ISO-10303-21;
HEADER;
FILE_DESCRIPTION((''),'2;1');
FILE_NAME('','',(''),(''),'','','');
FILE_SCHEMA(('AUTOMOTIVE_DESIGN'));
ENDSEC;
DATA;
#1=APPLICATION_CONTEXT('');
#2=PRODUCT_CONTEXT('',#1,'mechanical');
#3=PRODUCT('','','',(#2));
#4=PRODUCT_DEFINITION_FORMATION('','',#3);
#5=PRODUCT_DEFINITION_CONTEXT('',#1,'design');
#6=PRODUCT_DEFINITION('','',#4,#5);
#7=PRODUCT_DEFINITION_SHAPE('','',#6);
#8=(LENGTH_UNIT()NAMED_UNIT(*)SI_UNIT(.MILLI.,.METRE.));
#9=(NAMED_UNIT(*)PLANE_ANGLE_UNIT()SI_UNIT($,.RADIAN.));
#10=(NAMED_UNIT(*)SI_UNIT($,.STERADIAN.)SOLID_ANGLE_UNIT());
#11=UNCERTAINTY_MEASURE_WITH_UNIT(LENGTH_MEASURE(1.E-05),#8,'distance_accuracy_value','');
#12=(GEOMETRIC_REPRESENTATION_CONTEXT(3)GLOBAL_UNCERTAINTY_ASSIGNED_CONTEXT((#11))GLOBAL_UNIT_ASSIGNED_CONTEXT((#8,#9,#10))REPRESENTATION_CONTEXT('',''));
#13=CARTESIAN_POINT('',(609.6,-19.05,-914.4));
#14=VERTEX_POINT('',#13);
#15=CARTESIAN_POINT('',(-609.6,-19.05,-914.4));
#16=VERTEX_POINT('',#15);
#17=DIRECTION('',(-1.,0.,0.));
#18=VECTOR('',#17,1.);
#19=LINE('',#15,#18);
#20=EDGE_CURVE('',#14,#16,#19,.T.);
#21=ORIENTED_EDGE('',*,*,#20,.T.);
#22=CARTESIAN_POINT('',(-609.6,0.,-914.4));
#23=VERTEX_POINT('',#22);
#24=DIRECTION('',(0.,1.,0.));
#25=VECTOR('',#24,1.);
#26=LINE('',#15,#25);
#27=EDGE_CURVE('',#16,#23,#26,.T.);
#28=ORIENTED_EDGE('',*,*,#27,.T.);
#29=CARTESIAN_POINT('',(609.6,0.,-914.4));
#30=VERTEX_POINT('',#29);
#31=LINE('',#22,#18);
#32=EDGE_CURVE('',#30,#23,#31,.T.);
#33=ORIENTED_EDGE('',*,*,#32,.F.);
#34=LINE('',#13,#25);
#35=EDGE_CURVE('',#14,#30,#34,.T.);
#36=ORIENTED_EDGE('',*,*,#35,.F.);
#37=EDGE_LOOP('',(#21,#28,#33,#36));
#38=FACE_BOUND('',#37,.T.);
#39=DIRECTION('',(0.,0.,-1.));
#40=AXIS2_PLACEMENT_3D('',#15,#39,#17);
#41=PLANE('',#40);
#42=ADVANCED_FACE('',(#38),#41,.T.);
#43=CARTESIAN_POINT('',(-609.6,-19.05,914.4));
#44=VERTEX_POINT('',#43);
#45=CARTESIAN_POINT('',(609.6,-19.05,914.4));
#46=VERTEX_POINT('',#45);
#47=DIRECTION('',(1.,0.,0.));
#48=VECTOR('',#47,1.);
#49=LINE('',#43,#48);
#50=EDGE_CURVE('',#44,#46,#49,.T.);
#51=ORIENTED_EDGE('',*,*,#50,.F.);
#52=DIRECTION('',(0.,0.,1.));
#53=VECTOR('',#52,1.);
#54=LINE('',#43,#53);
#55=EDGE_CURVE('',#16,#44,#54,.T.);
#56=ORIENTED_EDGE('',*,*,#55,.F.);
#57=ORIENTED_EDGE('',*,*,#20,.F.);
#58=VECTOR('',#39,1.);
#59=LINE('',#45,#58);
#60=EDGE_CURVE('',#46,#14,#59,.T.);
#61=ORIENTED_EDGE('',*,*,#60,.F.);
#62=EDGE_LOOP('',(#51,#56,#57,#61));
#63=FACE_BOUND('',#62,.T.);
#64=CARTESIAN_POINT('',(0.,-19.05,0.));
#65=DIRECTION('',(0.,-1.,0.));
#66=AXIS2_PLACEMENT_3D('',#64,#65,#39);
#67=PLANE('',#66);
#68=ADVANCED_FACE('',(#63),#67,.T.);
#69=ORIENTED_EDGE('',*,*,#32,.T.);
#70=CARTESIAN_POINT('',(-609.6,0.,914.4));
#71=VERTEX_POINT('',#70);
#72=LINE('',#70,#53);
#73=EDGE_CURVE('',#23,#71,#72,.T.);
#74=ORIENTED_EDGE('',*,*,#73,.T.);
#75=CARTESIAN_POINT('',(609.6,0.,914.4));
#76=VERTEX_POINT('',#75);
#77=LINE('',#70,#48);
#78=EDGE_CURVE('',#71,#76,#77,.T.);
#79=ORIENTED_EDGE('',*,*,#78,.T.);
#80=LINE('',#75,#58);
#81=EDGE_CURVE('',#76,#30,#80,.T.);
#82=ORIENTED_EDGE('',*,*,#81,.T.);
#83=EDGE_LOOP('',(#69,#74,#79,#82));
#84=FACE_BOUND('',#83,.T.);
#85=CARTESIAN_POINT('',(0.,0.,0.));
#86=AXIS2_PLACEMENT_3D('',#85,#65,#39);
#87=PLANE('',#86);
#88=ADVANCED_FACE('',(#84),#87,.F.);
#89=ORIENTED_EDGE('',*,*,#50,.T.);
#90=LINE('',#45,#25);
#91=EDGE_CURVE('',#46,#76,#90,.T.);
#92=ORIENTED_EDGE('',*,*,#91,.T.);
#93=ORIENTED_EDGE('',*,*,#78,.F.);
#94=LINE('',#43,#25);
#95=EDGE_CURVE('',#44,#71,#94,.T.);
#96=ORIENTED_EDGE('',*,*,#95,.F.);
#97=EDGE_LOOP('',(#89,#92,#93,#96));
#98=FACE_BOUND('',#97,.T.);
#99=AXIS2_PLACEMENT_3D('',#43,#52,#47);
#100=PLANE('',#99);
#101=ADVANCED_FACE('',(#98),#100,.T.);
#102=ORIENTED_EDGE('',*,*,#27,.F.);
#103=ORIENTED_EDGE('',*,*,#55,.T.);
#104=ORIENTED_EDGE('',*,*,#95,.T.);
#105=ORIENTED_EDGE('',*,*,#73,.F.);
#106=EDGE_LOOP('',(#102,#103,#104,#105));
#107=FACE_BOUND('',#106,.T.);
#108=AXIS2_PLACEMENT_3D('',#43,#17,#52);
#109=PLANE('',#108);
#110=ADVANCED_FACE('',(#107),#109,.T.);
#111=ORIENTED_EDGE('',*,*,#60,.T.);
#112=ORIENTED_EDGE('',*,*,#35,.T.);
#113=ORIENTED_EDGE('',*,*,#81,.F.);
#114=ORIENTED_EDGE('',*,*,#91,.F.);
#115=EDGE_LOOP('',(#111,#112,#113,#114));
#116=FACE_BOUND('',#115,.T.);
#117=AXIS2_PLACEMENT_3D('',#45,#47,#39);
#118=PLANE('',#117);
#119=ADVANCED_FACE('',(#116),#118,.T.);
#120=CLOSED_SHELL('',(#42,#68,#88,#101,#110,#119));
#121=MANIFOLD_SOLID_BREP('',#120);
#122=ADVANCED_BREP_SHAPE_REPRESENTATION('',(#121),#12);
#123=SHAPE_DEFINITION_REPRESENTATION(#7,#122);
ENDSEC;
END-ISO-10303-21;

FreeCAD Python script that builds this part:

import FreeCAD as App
import Part
import Sketcher
Q = App.Units.Quantity

doc = App.newDocument("Part")
body = doc.addObject("PartDesign::Body", "Body")

sketch1 = body.newObject("Sketcher::SketchObject", "Sketch")
sketch1.AttachmentSupport = (doc.getObject("XZ_Plane"), [""])
sketch1.MapMode = "FlatFace"
sketch1.addGeometry([
    Part.LineSegment(App.Vector(-610, -914, 0), App.Vector(-610, 914, 0)),
    Part.LineSegment(App.Vector(-610, 914, 0), App.Vector(610, 914, 0)),
    Part.LineSegment(App.Vector(610, 914, 0), App.Vector(610, -914, 0)),
    Part.LineSegment(App.Vector(610, -914, 0), App.Vector(-610, -914, 0)),
], False)
sketch1.addConstraint([
    Sketcher.Constraint("Coincident", 0, 2, 1, 1),
    Sketcher.Constraint("Coincident", 1, 2, 2, 1),
    Sketcher.Constraint("Coincident", 2, 2, 3, 1),
    Sketcher.Constraint("Coincident", 3, 2, 0, 1),
    Sketcher.Constraint("Vertical", 0),
    Sketcher.Constraint("Horizontal", 1),
    Sketcher.Constraint("Vertical", 2),
    Sketcher.Constraint("Horizontal", 3),
    Sketcher.Constraint("Symmetric", 0, 2, 2, 2, -1, 1),
    Sketcher.Constraint("DistanceX", 1, 1, 1, 2, Q("48 in")),
    Sketcher.Constraint("DistanceY", 0, 1, 0, 2, Q("72 in")),
])
pad1 = body.newObject("PartDesign::Pad", "Pad")
pad1.Profile = sketch1
pad1.Length = Q("0.75 in")

doc.recompute()
